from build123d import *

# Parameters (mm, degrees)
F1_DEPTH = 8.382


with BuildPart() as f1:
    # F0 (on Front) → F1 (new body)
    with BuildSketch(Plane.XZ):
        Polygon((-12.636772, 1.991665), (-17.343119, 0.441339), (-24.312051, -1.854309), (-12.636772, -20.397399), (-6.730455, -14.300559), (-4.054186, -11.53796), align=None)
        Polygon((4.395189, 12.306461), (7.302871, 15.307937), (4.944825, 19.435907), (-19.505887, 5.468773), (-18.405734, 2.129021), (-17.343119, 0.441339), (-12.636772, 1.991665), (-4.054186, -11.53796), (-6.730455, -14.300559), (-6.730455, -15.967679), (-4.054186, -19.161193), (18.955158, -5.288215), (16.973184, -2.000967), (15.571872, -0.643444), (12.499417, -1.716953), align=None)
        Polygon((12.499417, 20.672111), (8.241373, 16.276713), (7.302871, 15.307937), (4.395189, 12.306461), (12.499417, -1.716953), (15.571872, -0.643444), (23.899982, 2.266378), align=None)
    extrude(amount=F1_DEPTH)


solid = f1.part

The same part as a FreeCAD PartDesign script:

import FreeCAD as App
import Part
import Sketcher
from FreeCAD import Vector
Q = App.Units.Quantity


def add_polygon(sketch, points):
    """Adds a closed chain of lines whose ends are joined by coincident constraints."""
    first, n = sketch.GeometryCount, len(points)
    for a, b in zip(points, points[1:] + points[:1]):
        sketch.addGeometry(Part.LineSegment(App.Vector(*a, 0), App.Vector(*b, 0)), False)
    for i in range(n):
        sketch.addConstraint(Sketcher.Constraint("Coincident", first + i, 2, first + (i + 1) % n, 1))

doc = App.newDocument("Part")
params = doc.addObject("Spreadsheet::Sheet", "Params")
for row, (alias, value) in enumerate([
    ("pad1_length", "0.33 in"),
], start=1):
    params.set(f"A{row}", alias)
    params.set(f"B{row}", "=" + value)
    params.setAlias(f"B{row}", alias)

body = doc.addObject("PartDesign::Body", "Body")

# Sketch on XZ plane
sketch1 = body.newObject("Sketcher::SketchObject", "Sketch")
sketch1.AttachmentSupport = (doc.getObject("XZ_Plane"), [""])
sketch1.MapMode = "FlatFace"
add_polygon(sketch1, [(-17.343119, 0.441339), (-24.312051, -1.854309), (-12.636772, -20.397399), (-6.730455, -14.300559), (-6.730455, -15.967679), (-4.054186, -19.161193), (18.955158, -5.288215), (16.973184, -2.000967), (15.571872, -0.643444), (23.899982, 2.266378), (12.499417, 20.672111), (8.241373, 16.276713), (7.302871, 15.307937), (4.944825, 19.435907), (-19.505887, 5.468773), (-18.405734, 2.129021)])  # lines 0-15
sketch1.addConstraint([
    Sketcher.Constraint("Vertical", 3),
    Sketcher.Constraint("Perpendicular", 5, 6),
    Sketcher.Constraint("Perpendicular", 2, 7),
    Sketcher.Constraint("Perpendicular", 7, 10),
    Sketcher.Constraint("Parallel", 10, 11),
    Sketcher.Constraint("Perpendicular", 12, 13),
    Sketcher.Constraint("Perpendicular", 0, 14),
    Sketcher.Constraint("Parallel", 1, 15),
    Sketcher.Constraint("DistanceX", 15, 2, -1, 1, Q("0.6828 in")),
    Sketcher.Constraint("Distance", 5, Q("26.868 mm")),
    Sketcher.Constraint("Distance", 12, Q("4.754 mm")),
    Sketcher.Constraint("DistanceY", 3, 2, 3, 1, Q("1.66712 mm")),
    Sketcher.Constraint("DistanceY", 1, 2, -1, 1, Q("20.397399 mm")),
    Sketcher.Constraint("DistanceX", 6, 2, 8, 2, Q("6.926798 mm")),
    Sketcher.Constraint("DistanceX", 10, 2, 7, 2, Q("7.330499 mm")),
    Sketcher.Constraint("DistanceX", 11, 2, 10, 2, Q("0.938502 mm")),
    Sketcher.Constraint("DistanceY", 3, 2, 14, 2, Q("18.0967 mm")),
    Sketcher.Constraint("Distance", 8, Q("8.821818 mm")),
    Sketcher.Constraint("Distance", 10, Q("6.119678 mm")),
    Sketcher.Constraint("Distance", 11, Q("1.348819 mm")),
    Sketcher.Constraint("DistanceX", 0, 2, -1, 1, Q("24.312051 mm")),
    Sketcher.Constraint("DistanceY", 0, 2, -1, 1, Q("1.854309 mm")),
    Sketcher.Constraint("DistanceY", 2, 2, -1, 1, Q("14.300559 mm")),
    Sketcher.Constraint("DistanceX", -1, 1, 5, 2, Q("18.955158 mm")),
    Sketcher.Constraint("DistanceY", -1, 1, 8, 2, Q("2.266378 mm")),
    Sketcher.Constraint("DistanceY", -1, 1, 9, 2, Q("20.672111 mm")),
    Sketcher.Constraint("DistanceX", -1, 1, 11, 2, Q("7.302871 mm")),
    Sketcher.Constraint("DistanceY", -1, 1, 15, 2, Q("0.441339 mm")),
    Sketcher.Constraint("DistanceX", 0, 2, 1, 2, Q("11.675279 mm")),
    Sketcher.Constraint("DistanceX", 3, 2, 4, 2, Q("2.676269 mm")),
    Sketcher.Constraint("DistanceY", 5, 2, 6, 2, Q("3.287248 mm")),
    Sketcher.Constraint("DistanceY", 11, 2, 12, 2, Q("4.12797 mm")),
])
pad1 = body.newObject("PartDesign::Pad", "Pad")
pad1.Profile = sketch1
pad1.setExpression("Length", "Params.pad1_length")

doc.recompute()
